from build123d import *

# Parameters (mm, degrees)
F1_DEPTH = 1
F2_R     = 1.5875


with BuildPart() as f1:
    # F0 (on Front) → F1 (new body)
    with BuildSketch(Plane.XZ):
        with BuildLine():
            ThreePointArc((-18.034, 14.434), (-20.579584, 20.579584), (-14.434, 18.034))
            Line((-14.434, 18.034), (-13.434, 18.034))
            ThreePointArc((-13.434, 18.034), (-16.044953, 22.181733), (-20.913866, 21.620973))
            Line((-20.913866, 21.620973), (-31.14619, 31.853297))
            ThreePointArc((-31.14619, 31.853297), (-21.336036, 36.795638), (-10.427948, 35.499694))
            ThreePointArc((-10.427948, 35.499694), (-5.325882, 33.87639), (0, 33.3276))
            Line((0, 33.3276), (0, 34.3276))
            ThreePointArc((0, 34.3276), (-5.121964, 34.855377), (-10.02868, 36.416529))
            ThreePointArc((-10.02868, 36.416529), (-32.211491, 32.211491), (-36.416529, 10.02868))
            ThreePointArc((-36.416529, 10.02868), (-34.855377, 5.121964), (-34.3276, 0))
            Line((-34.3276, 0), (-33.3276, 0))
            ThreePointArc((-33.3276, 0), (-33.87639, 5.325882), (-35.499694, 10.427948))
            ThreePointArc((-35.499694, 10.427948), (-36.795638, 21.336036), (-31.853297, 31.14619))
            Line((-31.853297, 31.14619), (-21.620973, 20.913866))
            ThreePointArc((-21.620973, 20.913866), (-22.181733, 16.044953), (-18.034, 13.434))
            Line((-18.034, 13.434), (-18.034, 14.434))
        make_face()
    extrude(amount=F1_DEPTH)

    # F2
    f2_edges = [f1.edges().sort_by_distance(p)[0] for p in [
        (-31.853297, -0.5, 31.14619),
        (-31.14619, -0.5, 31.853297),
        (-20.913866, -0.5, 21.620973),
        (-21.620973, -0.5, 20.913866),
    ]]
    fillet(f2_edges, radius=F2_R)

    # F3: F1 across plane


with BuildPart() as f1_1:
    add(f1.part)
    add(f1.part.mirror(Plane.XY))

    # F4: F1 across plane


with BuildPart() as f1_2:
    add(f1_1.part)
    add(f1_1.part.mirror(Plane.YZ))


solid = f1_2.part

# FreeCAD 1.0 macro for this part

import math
import FreeCAD as App
import Part
import Sketcher

V = App.Vector
Q = App.Units.Quantity


def edges_at(feature, points):
    """Names of the edges that pass closest to the given points."""
    edges = feature.Shape.Edges
    near = lambda p: min(range(len(edges)), key=lambda i: edges[i].distToShape(Part.Vertex(*p))[0])
    return sorted({f"Edge{near(p) + 1}" for p in points})

doc = App.newDocument("Part")
body = doc.addObject("PartDesign::Body", "Body")

sketch1 = doc.addObject("Sketcher::SketchObject", "Sketch")
body.addObject(sketch1)
sketch1.AttachmentSupport = (doc.XZ_Plane, [""])
sketch1.MapMode = "FlatFace"
sketch1.addGeometry([
    Part.ArcOfCircle(Part.Circle(V(-18, 18, 0), V(0, 0, 1), 3.6), math.radians(0), math.radians(270)),
    Part.LineSegment(V(-14.4, 18, 0), V(-13.4, 18, 0)),
    Part.ArcOfCircle(Part.Circle(V(-18, 18, 0), V(0, 0, 1), 4.6), math.radians(0), math.radians(129)),
    Part.LineSegment(V(-20.9, 21.6, 0), V(-31.1, 31.9, 0)),
    Part.ArcOfCircle(Part.Circle(V(-18, 18, 0), V(0, 0, 1), 19), math.radians(66), math.radians(133)),
    Part.ArcOfCircle(Part.Circle(V(0, 59.4, 0), V(0, 0, 1), 26.1), math.radians(-114), math.radians(-90)),
    Part.LineSegment(V(0, 33.3, 0), V(0, 34.3, 0)),
    Part.ArcOfCircle(Part.Circle(V(0, 59.4, 0), V(0, 0, 1), 25.1), math.radians(-114), math.radians(-90)),
    Part.ArcOfCircle(Part.Circle(V(-18, 18, 0), V(0, 0, 1), 20.1), math.radians(66), math.radians(204)),
    Part.ArcOfCircle(Part.Circle(V(-59.4, 0, 0), V(0, 0, 1), 25.1), math.radians(0), math.radians(24)),
    Part.LineSegment(V(-34.3, 0, 0), V(-33.3, 0, 0)),
    Part.ArcOfCircle(Part.Circle(V(-59.4, 0, 0), V(0, 0, 1), 26.1), math.radians(0), math.radians(24)),
    Part.ArcOfCircle(Part.Circle(V(-18, 18, 0), V(0, 0, 1), 19), math.radians(137), math.radians(204)),
    Part.LineSegment(V(-31.9, 31.1, 0), V(-21.6, 20.9, 0)),
    Part.ArcOfCircle(Part.Circle(V(-18, 18, 0), V(0, 0, 1), 4.6), math.radians(141), math.radians(270)),
    Part.LineSegment(V(-18, 13.4, 0), V(-18, 14.4, 0)),
], False)
sketch1.addConstraint([
    Sketcher.Constraint("Coincident", 0, 1, 1, 1),
    Sketcher.Constraint("Coincident", 1, 2, 2, 1),
    Sketcher.Constraint("Coincident", 2, 2, 3, 1),
    Sketcher.Constraint("Coincident", 3, 2, 4, 2),
    Sketcher.Constraint("Tangent", 4, 1, 5, 1),
    Sketcher.Constraint("Coincident", 5, 2, 6, 1),
    Sketcher.Constraint("Coincident", 6, 2, 7, 2),
    Sketcher.Constraint("Tangent", 7, 1, 8, 1),
    Sketcher.Constraint("Tangent", 8, 2, 9, 2),
    Sketcher.Constraint("Coincident", 9, 1, 10, 1),
    Sketcher.Constraint("Coincident", 10, 2, 11, 1),
    Sketcher.Constraint("Tangent", 11, 2, 12, 2),
    Sketcher.Constraint("Coincident", 12, 1, 13, 1),
    Sketcher.Constraint("Coincident", 13, 2, 14, 1),
    Sketcher.Constraint("Coincident", 14, 2, 15, 1),
    Sketcher.Constraint("Coincident", 15, 2, 0, 2),
    Sketcher.Constraint("Horizontal", 1),
    Sketcher.Constraint("Vertical", 6),
    Sketcher.Constraint("Horizontal", 10),
    Sketcher.Constraint("Vertical", 15),
    Sketcher.Constraint("Coincident", 2, 3, 0, 3),
    Sketcher.Constraint("Coincident", 4, 3, 0, 3),
    Sketcher.Constraint("Coincident", 8, 3, 0, 3),
    Sketcher.Constraint("Coincident", 12, 3, 0, 3),
    Sketcher.Constraint("Coincident", 14, 3, 0, 3),
    Sketcher.Constraint("Equal", 7, 9),
    Sketcher.Constraint("Equal", 5, 11),
    Sketcher.Constraint("Equal", 4, 12),
    Sketcher.Constraint("Equal", 2, 14),
    Sketcher.Constraint("PointOnObject", 7, 3, -2),
    Sketcher.Constraint("PointOnObject", 9, 3, -1),
    Sketcher.Constraint("PointOnObject", 5, 2, -2),
    Sketcher.Constraint("PointOnObject", 9, 1, -1),
    Sketcher.Constraint("Parallel", 3, 13),
    Sketcher.Constraint("Horizontal", 14, 3, 0, 1),
    Sketcher.Constraint("Vertical", 12, 3, 14, 2),
    Sketcher.Constraint("Equal", 1, 10),
    Sketcher.Constraint("Equal", 10, 6),
    Sketcher.Constraint("Equal", 3, 13),
    Sketcher.Constraint("Radius", 0, 3.6),
    Sketcher.Constraint("Radius", 2, 4.600001),
    Sketcher.Constraint("Angle", 3, Q("135 deg")),
    Sketcher.Constraint("Radius", 4, 19.049999),
    Sketcher.Constraint("Radius", 8, 20.050001),
    Sketcher.Constraint("Radius", 5, 26.117719),
    Sketcher.Constraint("Radius", 7, 25.117658),
    Sketcher.Constraint("DistanceX", 0, 3, -1, 1, 18.034),
    Sketcher.Constraint("DistanceY", -1, 1, 0, 3, 18.034),
    Sketcher.Constraint("Distance", 3, 14.470691),
])
pad1 = doc.addObject("PartDesign::Pad", "Pad")
body.addObject(pad1)
pad1.Profile = sketch1
pad1.Length = 1
doc.recompute()

fillet = doc.addObject("PartDesign::Fillet", "Fillet")
body.addObject(fillet)
fillet.Base = (pad1, edges_at(pad1, [
    (-31.853, -0.5, 31.146),
    (-31.146, -0.5, 31.853),
    (-20.914, -0.5, 21.621),
    (-21.621, -0.5, 20.914),
]))
fillet.Radius = 1.5875
body2 = doc.addObject("PartDesign::Body", "Body001")
doc.recompute()

body2.BaseFeature = body
doc.recompute()

mirroring = doc.addObject("Part::Mirroring", "Mirroring")
mirroring.Source = body
mirroring.Base = V(0, 0, 0)
mirroring.Normal = V(0, 0, 1)
body3 = doc.addObject("PartDesign::Body", "Body002")
body3.BaseFeature = mirroring
boolean = doc.addObject("PartDesign::Boolean", "Boolean")
body2.addObject(boolean)
boolean.Type = "Fuse"
boolean.addObjects([body3])
doc.recompute()
body4 = doc.addObject("PartDesign::Body", "Body003")
doc.recompute()

body4.BaseFeature = body2
doc.recompute()

mirroring2 = doc.addObject("Part::Mirroring", "Mirroring001")
mirroring2.Source = body2
mirroring2.Base = V(0, 0, 0)
mirroring2.Normal = V(1, 0, 0)
body5 = doc.addObject("PartDesign::Body", "Body004")
body5.BaseFeature = mirroring2
boolean2 = doc.addObject("PartDesign::Boolean", "Boolean001")
body4.addObject(boolean2)
boolean2.Type = "Fuse"
boolean2.addObjects([body5])
doc.recompute()
mirroring.Visibility = False
mirroring2.Visibility = False

doc.recompute()
